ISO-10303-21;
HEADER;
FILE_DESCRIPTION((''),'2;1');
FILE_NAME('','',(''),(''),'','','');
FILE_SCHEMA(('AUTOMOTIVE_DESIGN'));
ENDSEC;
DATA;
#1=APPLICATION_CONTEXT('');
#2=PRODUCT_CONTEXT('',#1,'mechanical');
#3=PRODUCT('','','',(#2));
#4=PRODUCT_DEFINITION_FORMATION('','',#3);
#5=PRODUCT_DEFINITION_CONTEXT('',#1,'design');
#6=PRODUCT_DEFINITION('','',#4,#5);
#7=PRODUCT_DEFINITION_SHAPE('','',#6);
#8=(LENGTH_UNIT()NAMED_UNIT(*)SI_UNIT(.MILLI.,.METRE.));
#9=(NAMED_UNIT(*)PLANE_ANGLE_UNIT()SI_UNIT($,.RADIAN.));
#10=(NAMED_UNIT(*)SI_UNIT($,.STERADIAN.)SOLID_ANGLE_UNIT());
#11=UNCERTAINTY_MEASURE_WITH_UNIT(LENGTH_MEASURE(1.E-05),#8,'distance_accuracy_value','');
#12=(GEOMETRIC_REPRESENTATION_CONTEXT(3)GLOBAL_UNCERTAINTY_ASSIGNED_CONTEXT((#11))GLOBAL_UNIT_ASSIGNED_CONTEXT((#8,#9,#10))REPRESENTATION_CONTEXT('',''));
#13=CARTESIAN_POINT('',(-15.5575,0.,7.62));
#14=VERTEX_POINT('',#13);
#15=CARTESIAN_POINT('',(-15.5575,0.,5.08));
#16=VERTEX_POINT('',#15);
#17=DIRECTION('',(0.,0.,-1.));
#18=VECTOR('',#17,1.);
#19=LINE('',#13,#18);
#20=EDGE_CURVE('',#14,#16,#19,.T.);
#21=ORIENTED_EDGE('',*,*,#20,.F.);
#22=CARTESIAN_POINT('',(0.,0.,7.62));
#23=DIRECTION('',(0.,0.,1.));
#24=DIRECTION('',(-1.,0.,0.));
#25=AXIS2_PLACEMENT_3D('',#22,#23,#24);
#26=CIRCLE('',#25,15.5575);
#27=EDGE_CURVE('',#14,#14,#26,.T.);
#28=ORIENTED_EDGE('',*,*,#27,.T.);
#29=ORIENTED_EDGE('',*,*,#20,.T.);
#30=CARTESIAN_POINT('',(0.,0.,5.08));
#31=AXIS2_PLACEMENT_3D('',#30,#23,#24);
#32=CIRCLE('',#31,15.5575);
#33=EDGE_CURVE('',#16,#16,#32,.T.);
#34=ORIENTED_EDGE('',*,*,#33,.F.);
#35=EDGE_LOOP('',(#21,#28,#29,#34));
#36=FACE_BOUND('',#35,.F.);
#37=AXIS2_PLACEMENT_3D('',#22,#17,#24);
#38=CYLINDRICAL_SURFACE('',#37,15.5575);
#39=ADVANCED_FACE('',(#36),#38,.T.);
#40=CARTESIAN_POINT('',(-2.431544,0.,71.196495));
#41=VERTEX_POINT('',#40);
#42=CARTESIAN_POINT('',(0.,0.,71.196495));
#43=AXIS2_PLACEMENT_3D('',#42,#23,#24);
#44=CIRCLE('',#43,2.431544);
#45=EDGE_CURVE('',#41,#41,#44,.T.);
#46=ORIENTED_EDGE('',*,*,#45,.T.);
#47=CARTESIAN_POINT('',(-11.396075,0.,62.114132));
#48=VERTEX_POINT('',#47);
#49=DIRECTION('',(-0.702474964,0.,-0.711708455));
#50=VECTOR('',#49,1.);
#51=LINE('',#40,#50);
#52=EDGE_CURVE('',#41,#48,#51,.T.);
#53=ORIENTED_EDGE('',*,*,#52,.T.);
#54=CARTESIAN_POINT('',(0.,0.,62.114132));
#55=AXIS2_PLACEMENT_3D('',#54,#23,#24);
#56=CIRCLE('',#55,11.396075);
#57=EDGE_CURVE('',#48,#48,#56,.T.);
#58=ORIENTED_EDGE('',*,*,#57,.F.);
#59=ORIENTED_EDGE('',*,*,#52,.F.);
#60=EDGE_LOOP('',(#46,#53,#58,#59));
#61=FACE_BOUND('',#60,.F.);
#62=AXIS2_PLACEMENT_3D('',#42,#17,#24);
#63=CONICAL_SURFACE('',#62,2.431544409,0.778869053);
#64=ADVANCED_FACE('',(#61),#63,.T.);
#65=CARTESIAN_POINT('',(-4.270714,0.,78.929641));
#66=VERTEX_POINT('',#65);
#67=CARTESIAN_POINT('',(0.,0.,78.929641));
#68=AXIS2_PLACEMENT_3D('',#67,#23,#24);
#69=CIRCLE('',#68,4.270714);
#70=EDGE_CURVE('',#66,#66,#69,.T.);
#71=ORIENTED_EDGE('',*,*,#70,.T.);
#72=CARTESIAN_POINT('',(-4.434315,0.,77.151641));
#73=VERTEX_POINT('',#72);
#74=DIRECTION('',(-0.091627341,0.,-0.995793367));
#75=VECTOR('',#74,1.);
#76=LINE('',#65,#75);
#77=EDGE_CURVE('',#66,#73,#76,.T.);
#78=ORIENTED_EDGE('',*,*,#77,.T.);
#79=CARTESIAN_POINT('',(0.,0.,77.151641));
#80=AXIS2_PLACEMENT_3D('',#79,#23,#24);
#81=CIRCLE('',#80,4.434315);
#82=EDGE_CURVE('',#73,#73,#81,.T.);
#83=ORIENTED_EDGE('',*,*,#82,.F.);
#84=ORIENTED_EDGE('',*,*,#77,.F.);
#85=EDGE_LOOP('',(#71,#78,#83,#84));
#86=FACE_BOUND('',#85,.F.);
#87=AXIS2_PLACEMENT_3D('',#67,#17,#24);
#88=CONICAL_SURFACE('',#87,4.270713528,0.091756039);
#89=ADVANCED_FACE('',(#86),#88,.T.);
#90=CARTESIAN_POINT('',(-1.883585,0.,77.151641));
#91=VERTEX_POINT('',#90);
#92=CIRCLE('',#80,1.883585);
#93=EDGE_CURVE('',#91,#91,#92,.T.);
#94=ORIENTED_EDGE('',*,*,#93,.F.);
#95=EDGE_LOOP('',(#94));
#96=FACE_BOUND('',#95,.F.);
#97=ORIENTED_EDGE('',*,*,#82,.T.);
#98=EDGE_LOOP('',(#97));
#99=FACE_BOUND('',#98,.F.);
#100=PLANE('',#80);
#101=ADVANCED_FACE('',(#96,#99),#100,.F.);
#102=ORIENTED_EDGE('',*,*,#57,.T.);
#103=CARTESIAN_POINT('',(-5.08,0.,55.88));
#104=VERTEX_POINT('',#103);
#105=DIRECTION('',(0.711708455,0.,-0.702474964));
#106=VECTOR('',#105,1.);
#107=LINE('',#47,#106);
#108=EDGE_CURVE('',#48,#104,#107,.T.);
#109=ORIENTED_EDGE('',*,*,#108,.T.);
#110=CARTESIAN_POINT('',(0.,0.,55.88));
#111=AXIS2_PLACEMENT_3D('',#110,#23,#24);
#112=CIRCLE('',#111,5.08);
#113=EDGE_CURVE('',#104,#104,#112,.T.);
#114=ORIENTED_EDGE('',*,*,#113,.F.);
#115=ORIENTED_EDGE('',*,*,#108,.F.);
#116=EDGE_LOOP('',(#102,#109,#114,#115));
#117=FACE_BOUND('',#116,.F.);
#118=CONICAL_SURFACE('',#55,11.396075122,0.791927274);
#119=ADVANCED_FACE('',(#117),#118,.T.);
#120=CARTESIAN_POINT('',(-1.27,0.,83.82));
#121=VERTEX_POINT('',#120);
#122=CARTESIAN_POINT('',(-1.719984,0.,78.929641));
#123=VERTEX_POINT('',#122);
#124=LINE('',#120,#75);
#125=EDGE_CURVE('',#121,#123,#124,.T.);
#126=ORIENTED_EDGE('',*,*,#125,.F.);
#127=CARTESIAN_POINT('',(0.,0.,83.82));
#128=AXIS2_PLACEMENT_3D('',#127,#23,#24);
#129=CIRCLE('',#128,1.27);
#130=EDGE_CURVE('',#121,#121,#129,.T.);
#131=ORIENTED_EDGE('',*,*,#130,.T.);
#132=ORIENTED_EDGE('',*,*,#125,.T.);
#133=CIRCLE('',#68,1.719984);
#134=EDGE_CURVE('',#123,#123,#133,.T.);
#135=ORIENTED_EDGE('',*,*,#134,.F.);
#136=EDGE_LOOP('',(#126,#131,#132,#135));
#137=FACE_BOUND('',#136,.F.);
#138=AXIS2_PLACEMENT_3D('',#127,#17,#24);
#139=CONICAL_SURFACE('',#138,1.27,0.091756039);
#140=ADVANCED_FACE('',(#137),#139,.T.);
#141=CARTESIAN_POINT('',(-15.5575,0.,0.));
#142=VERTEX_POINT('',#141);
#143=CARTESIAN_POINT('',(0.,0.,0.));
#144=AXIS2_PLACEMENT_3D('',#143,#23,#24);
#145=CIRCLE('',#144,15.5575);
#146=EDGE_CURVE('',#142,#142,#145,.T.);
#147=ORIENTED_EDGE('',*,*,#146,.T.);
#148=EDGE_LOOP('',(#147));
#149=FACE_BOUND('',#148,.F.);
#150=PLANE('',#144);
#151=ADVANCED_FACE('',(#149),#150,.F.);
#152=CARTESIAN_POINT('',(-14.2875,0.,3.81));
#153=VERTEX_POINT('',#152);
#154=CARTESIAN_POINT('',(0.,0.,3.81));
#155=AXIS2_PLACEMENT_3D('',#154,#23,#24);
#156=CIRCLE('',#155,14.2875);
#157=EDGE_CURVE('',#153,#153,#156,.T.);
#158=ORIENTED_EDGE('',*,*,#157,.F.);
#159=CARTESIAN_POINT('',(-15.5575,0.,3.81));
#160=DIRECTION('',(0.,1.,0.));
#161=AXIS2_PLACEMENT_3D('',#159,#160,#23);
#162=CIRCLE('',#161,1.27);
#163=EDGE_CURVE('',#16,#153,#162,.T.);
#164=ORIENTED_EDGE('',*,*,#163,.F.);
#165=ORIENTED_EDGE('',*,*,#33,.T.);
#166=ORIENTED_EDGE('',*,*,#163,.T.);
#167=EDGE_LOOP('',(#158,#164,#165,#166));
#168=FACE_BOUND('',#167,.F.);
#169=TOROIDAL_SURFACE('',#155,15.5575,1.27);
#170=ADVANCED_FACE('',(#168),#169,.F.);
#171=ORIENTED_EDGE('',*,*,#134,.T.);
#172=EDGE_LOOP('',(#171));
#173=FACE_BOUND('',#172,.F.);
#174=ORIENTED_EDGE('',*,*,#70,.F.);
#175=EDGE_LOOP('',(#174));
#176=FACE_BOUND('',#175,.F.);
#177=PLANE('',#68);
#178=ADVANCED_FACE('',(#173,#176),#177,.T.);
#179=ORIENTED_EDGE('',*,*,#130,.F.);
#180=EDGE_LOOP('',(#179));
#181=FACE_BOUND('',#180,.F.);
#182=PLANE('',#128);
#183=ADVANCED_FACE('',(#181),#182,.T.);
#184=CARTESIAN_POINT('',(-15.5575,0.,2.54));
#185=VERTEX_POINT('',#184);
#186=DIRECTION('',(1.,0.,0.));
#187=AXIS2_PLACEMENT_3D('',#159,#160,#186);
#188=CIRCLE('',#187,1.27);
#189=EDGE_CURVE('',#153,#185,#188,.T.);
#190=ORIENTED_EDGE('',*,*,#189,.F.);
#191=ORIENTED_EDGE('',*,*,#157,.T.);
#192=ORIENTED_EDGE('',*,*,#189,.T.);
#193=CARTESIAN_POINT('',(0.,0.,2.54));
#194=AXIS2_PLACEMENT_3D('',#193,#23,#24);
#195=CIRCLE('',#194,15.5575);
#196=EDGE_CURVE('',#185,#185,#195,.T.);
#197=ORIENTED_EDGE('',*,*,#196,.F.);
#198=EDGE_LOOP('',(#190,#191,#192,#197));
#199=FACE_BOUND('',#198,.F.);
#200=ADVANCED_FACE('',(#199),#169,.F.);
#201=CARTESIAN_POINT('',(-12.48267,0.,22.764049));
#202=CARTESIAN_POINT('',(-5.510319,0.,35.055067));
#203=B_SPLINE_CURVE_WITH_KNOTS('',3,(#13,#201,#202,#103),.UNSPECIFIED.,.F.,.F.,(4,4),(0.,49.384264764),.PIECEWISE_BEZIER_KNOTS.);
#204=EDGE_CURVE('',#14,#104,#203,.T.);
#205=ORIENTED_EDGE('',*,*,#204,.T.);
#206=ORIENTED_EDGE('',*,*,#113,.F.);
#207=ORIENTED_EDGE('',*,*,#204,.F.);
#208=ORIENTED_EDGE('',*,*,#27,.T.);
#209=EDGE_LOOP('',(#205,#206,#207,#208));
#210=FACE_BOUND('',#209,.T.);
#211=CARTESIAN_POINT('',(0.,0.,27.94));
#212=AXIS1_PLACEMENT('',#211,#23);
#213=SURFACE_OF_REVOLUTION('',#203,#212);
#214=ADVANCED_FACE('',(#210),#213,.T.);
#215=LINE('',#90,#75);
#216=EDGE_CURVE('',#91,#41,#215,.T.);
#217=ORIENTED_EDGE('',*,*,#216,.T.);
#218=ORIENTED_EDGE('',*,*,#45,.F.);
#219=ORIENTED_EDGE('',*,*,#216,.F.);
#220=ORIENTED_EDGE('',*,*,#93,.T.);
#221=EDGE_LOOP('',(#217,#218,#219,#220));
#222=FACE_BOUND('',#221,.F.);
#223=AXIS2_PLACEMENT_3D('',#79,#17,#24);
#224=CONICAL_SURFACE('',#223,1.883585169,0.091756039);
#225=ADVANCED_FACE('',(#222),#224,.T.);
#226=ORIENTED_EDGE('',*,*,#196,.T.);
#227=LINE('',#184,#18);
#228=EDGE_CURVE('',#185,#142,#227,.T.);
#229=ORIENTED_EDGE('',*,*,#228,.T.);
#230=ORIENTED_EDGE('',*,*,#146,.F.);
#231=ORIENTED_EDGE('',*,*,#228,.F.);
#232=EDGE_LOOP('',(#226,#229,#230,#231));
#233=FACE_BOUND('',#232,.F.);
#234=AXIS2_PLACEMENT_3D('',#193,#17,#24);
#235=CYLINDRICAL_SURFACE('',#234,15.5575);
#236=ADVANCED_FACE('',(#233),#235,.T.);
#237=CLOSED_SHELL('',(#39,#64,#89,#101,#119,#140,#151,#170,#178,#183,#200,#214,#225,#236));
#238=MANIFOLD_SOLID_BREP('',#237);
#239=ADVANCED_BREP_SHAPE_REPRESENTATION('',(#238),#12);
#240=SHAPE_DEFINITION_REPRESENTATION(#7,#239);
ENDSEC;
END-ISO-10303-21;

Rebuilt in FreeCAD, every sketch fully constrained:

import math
import FreeCAD as App
import Part
import Sketcher

V = App.Vector
Q = App.Units.Quantity

doc = App.newDocument("Part")
body = doc.addObject("PartDesign::Body", "Body")

# Sketch on XZ plane
sketch1 = body.newObject("Sketcher::SketchObject", "Sketch")
sketch1.AttachmentSupport = (doc.getObject("XZ_Plane"), [""])
sketch1.MapMode = "FlatFace"
sketch1.addGeometry([
    Part.LineSegment(V(-12.7, 0, 0), V(0, 0, 0)),  # 0
    Part.BSplineCurve([V(0, 0, 0), V(7.451402, 3.33156, 0), V(-2.533915, 7.626085, 0), V(-2.54, 12.7, 0)], [4, 4], [0, 12.951509565], False, 3, [1, 1, 1, 1], False),  # 1
    Part.BSplineCurve([V(-2.54, 12.7, 0), V(4.509366, 26.447563, 0), V(-14.613872, 38.636003, 0), V(-5.08, 50.8, 0)], [4, 4], [0, 38.184572801], False, 3, [1, 1, 1, 1], False),  # 2
    Part.BSplineCurve([V(-5.08, 50.8, 0), V(-3.208858, 50.959531, 0), V(-3.349113, 53.203613, 0), V(-5.08, 53.34, 0)], [4, 4], [0, 2.54], False, 3, [1, 1, 1, 1], False),  # 3
    Part.LineSegment(V(-5.08, 53.34, 0), V(-2.084477, 59.69, 0)),  # 4
    Part.BSplineCurve([V(-11.43, 53.54712, 0), V(-8.056559, 54.640367, 0), V(-5.547957, 59.69, 0), V(-2.084477, 59.69, 0)], [4, 4], [1.339031687, 12.369794962], False, 3, [1, 1, 1, 1], False),  # 5
    Part.LineSegment(V(-11.43, 53.54712, 0), V(-11.43, 61.191674, 0)),  # 6
    Part.LineSegment(V(-11.43, 61.191674, 0), V(-7.62, 61.191674, 0)),  # 7
    Part.LineSegment(V(-7.62, 61.191674, 0), V(-7.62, 62.461674, 0)),  # 8
    Part.LineSegment(V(-7.62, 62.461674, 0), V(-11.43, 62.461674, 0)),  # 9
    Part.LineSegment(V(-11.43, 62.461674, 0), V(-11.43, 66.04, 0)),  # 10
    Part.LineSegment(V(-11.43, 66.04, 0), V(-12.7, 66.04, 0)),  # 11
    Part.LineSegment(V(-12.7, 66.04, 0), V(-12.7, 0, 0)),  # 12
], False)
sketch1.addGeometry(Part.LineSegment(V(-12.7, 0, 0), V(-12.7, 66.04, 0)), True)  # axis
sketch1.addConstraint([
    Sketcher.Constraint("Block", 1),
    Sketcher.Constraint("Block", 2),
    Sketcher.Constraint("Block", 3),
    Sketcher.Constraint("Block", 5),
    Sketcher.Constraint("Coincident", 0, 2, 1, 1),
    Sketcher.Constraint("Coincident", 3, 2, 4, 1),
    Sketcher.Constraint("Coincident", 4, 2, 5, 2),
    Sketcher.Constraint("Coincident", 5, 1, 6, 1),
    Sketcher.Constraint("Coincident", 6, 2, 7, 1),
    Sketcher.Constraint("Coincident", 7, 2, 8, 1),
    Sketcher.Constraint("Coincident", 8, 2, 9, 1),
    Sketcher.Constraint("Coincident", 9, 2, 10, 1),
    Sketcher.Constraint("Coincident", 10, 2, 11, 1),
    Sketcher.Constraint("Coincident", 11, 2, 12, 1),
    Sketcher.Constraint("Coincident", 12, 2, 0, 1),
    Sketcher.Constraint("Horizontal", 0),
    Sketcher.Constraint("Vertical", 6),
    Sketcher.Constraint("Horizontal", 7),
    Sketcher.Constraint("Vertical", 8),
    Sketcher.Constraint("Horizontal", 9),
    Sketcher.Constraint("Vertical", 10),
    Sketcher.Constraint("Horizontal", 11),
    Sketcher.Constraint("Vertical", 12),
    Sketcher.Constraint("Vertical", 13),
    Sketcher.Constraint("Coincident", 13, 1, 12, 2),
    Sketcher.Constraint("DistanceX", 0, 1, 0, 2, Q("0.5 in")),
    Sketcher.Constraint("DistanceY", 12, 2, 12, 1, Q("2.6 in")),
    Sketcher.Constraint("DistanceY", 13, 1, 13, 2, Q("2.6 in")),
    Sketcher.Constraint("DistanceX", 7, 1, 7, 2, Q("0.15 in")),
    Sketcher.Constraint("DistanceX", 9, 2, 9, 1, Q("0.15 in")),
    Sketcher.Constraint("DistanceY", 8, 1, 8, 2, Q("0.05 in")),
    Sketcher.Constraint("DistanceY", 6, 1, 6, 2, Q("7.644555 mm")),
])
revolution = body.newObject("PartDesign::Revolution", "Revolution")
revolution.Profile = sketch1
revolution.ReferenceAxis = (sketch1, ["Axis0"])
revolution.Angle = 360
body2 = doc.addObject("PartDesign::Body", "Body001")

# Sketch on XZ plane
sketch2 = body2.newObject("Sketcher::SketchObject", "Sketch001")
sketch2.AttachmentSupport = (doc.getObject("XZ_Plane001"), [""])
sketch2.MapMode = "FlatFace"
sketch2.addGeometry([
    Part.LineSegment(V(-1.27, 83.82, 0), V(-1.719984, 78.929641, 0)),  # 0
    Part.LineSegment(V(-1.719984, 78.929641, 0), V(-4.270714, 78.929641, 0)),  # 1
    Part.LineSegment(V(-4.270714, 78.929641, 0), V(-4.434315, 77.151641, 0)),  # 2
    Part.LineSegment(V(-4.434315, 77.151641, 0), V(-1.883585, 77.151641, 0)),  # 3
    Part.LineSegment(V(-1.883585, 77.151641, 0), V(-2.431544, 71.196495, 0)),  # 4
    Part.LineSegment(V(-2.431544, 71.196495, 0), V(-11.396075, 62.114132, 0)),  # 5
    Part.LineSegment(V(-11.396075, 62.114132, 0), V(-5.08, 55.88, 0)),  # 6
    Part.BSplineCurve([V(-15.5575, 7.62, 0), V(-12.48267, 22.764049, 0), V(-5.510319, 35.055067, 0), V(-5.08, 55.88, 0)], [4, 4], [0, 49.384264764], False, 3, [1, 1, 1, 1], False),  # 7
    Part.LineSegment(V(-15.5575, 7.62, 0), V(-15.5575, 5.08, 0)),  # 8
    Part.ArcOfCircle(Part.Circle(V(-15.5575, 3.81, 0), V(0, 0, 1), 1.27), math.radians(0), math.radians(90)),  # 9
    Part.ArcOfCircle(Part.Circle(V(-15.5575, 3.81, 0), V(0, 0, 1), 1.27), math.radians(-90), math.radians(0)),  # 10
    Part.LineSegment(V(-15.5575, 2.54, 0), V(-15.5575, 0, 0)),  # 11
    Part.LineSegment(V(-15.5575, 0, 0), V(0, 0, 0)),  # 12
    Part.LineSegment(V(0, 0, 0), V(0, 83.82, 0)),  # 13
    Part.LineSegment(V(0, 83.82, 0), V(-1.27, 83.82, 0)),  # 14
], False)
sketch2.addConstraint([
    Sketcher.Constraint("Block", 7),
    Sketcher.Constraint("Coincident", 0, 2, 1, 1),
    Sketcher.Constraint("Coincident", 1, 2, 2, 1),
    Sketcher.Constraint("Coincident", 2, 2, 3, 1),
    Sketcher.Constraint("Coincident", 3, 2, 4, 1),
    Sketcher.Constraint("Coincident", 4, 2, 5, 1),
    Sketcher.Constraint("Coincident", 5, 2, 6, 1),
    Sketcher.Constraint("Coincident", 6, 2, 7, 2),
    Sketcher.Constraint("Coincident", 7, 1, 8, 1),
    Sketcher.Constraint("Coincident", 8, 2, 9, 2),
    Sketcher.Constraint("Coincident", 9, 1, 10, 2),
    Sketcher.Constraint("Coincident", 10, 1, 11, 1),
    Sketcher.Constraint("Coincident", 11, 2, 12, 1),
    Sketcher.Constraint("Coincident", 12, 2, 13, 1),
    Sketcher.Constraint("Coincident", 13, 2, 14, 1),
    Sketcher.Constraint("Coincident", 14, 2, 0, 1),
    Sketcher.Constraint("Horizontal", 1),
    Sketcher.Constraint("Horizontal", 3),
    Sketcher.Constraint("Vertical", 8),
    Sketcher.Constraint("Vertical", 11),
    Sketcher.Constraint("Horizontal", 12),
    Sketcher.Constraint("Vertical", 13),
    Sketcher.Constraint("Horizontal", 14),
    Sketcher.Constraint("Coincident", 12, 2, -1, 1),
    Sketcher.Constraint("Coincident", 10, 3, 9, 3),
    Sketcher.Constraint("Radius", 9, Q("0.05 in")),
    Sketcher.Constraint("DistanceY", 8, 2, 8, 1, Q("0.1 in")),
    Sketcher.Constraint("DistanceY", 13, 1, 13, 2, Q("3.3 in")),
    Sketcher.Constraint("DistanceX", 14, 2, 14, 1, Q("0.05 in")),
    Sketcher.Constraint("DistanceY", -1, 1, 9, 1, Q("0.15 in")),
    Sketcher.Constraint("DistanceY", 2, 2, 1, 2, Q("0.07 in")),
    Sketcher.Constraint("DistanceX", 8, 2, 9, 1, Q("0.05 in")),
    Sketcher.Constraint("DistanceX", 10, 1, 9, 1, Q("0.05 in")),
    Sketcher.Constraint("DistanceX", 1, 2, 1, 1, Q("2.55073 mm")),
    Sketcher.Constraint("DistanceX", 3, 1, 3, 2, Q("2.55073 mm")),
    Sketcher.Constraint("DistanceX", 2, 2, 1, 2, Q("0.163602 mm")),
    Sketcher.Constraint("Distance", 0, Q("4.911018 mm")),
    Sketcher.Constraint("DistanceY", -1, 1, 0, 2, Q("78.929641 mm")),
    Sketcher.Constraint("DistanceX", 4, 2, 3, 2, Q("0.547959 mm")),
    Sketcher.Constraint("DistanceX", 5, 2, 4, 2, Q("8.964531 mm")),
    Sketcher.Constraint("DistanceY", 5, 2, 2, 2, Q("15.037508 mm")),
    Sketcher.Constraint("Distance", 4, Q("5.980303 mm")),
])
revolution2 = body2.newObject("PartDesign::Revolution", "Revolution001")
revolution2.Profile = sketch2
revolution2.ReferenceAxis = (sketch2, ["V_Axis"])
revolution2.Angle = 360
body.Visibility = False

doc.recompute()
